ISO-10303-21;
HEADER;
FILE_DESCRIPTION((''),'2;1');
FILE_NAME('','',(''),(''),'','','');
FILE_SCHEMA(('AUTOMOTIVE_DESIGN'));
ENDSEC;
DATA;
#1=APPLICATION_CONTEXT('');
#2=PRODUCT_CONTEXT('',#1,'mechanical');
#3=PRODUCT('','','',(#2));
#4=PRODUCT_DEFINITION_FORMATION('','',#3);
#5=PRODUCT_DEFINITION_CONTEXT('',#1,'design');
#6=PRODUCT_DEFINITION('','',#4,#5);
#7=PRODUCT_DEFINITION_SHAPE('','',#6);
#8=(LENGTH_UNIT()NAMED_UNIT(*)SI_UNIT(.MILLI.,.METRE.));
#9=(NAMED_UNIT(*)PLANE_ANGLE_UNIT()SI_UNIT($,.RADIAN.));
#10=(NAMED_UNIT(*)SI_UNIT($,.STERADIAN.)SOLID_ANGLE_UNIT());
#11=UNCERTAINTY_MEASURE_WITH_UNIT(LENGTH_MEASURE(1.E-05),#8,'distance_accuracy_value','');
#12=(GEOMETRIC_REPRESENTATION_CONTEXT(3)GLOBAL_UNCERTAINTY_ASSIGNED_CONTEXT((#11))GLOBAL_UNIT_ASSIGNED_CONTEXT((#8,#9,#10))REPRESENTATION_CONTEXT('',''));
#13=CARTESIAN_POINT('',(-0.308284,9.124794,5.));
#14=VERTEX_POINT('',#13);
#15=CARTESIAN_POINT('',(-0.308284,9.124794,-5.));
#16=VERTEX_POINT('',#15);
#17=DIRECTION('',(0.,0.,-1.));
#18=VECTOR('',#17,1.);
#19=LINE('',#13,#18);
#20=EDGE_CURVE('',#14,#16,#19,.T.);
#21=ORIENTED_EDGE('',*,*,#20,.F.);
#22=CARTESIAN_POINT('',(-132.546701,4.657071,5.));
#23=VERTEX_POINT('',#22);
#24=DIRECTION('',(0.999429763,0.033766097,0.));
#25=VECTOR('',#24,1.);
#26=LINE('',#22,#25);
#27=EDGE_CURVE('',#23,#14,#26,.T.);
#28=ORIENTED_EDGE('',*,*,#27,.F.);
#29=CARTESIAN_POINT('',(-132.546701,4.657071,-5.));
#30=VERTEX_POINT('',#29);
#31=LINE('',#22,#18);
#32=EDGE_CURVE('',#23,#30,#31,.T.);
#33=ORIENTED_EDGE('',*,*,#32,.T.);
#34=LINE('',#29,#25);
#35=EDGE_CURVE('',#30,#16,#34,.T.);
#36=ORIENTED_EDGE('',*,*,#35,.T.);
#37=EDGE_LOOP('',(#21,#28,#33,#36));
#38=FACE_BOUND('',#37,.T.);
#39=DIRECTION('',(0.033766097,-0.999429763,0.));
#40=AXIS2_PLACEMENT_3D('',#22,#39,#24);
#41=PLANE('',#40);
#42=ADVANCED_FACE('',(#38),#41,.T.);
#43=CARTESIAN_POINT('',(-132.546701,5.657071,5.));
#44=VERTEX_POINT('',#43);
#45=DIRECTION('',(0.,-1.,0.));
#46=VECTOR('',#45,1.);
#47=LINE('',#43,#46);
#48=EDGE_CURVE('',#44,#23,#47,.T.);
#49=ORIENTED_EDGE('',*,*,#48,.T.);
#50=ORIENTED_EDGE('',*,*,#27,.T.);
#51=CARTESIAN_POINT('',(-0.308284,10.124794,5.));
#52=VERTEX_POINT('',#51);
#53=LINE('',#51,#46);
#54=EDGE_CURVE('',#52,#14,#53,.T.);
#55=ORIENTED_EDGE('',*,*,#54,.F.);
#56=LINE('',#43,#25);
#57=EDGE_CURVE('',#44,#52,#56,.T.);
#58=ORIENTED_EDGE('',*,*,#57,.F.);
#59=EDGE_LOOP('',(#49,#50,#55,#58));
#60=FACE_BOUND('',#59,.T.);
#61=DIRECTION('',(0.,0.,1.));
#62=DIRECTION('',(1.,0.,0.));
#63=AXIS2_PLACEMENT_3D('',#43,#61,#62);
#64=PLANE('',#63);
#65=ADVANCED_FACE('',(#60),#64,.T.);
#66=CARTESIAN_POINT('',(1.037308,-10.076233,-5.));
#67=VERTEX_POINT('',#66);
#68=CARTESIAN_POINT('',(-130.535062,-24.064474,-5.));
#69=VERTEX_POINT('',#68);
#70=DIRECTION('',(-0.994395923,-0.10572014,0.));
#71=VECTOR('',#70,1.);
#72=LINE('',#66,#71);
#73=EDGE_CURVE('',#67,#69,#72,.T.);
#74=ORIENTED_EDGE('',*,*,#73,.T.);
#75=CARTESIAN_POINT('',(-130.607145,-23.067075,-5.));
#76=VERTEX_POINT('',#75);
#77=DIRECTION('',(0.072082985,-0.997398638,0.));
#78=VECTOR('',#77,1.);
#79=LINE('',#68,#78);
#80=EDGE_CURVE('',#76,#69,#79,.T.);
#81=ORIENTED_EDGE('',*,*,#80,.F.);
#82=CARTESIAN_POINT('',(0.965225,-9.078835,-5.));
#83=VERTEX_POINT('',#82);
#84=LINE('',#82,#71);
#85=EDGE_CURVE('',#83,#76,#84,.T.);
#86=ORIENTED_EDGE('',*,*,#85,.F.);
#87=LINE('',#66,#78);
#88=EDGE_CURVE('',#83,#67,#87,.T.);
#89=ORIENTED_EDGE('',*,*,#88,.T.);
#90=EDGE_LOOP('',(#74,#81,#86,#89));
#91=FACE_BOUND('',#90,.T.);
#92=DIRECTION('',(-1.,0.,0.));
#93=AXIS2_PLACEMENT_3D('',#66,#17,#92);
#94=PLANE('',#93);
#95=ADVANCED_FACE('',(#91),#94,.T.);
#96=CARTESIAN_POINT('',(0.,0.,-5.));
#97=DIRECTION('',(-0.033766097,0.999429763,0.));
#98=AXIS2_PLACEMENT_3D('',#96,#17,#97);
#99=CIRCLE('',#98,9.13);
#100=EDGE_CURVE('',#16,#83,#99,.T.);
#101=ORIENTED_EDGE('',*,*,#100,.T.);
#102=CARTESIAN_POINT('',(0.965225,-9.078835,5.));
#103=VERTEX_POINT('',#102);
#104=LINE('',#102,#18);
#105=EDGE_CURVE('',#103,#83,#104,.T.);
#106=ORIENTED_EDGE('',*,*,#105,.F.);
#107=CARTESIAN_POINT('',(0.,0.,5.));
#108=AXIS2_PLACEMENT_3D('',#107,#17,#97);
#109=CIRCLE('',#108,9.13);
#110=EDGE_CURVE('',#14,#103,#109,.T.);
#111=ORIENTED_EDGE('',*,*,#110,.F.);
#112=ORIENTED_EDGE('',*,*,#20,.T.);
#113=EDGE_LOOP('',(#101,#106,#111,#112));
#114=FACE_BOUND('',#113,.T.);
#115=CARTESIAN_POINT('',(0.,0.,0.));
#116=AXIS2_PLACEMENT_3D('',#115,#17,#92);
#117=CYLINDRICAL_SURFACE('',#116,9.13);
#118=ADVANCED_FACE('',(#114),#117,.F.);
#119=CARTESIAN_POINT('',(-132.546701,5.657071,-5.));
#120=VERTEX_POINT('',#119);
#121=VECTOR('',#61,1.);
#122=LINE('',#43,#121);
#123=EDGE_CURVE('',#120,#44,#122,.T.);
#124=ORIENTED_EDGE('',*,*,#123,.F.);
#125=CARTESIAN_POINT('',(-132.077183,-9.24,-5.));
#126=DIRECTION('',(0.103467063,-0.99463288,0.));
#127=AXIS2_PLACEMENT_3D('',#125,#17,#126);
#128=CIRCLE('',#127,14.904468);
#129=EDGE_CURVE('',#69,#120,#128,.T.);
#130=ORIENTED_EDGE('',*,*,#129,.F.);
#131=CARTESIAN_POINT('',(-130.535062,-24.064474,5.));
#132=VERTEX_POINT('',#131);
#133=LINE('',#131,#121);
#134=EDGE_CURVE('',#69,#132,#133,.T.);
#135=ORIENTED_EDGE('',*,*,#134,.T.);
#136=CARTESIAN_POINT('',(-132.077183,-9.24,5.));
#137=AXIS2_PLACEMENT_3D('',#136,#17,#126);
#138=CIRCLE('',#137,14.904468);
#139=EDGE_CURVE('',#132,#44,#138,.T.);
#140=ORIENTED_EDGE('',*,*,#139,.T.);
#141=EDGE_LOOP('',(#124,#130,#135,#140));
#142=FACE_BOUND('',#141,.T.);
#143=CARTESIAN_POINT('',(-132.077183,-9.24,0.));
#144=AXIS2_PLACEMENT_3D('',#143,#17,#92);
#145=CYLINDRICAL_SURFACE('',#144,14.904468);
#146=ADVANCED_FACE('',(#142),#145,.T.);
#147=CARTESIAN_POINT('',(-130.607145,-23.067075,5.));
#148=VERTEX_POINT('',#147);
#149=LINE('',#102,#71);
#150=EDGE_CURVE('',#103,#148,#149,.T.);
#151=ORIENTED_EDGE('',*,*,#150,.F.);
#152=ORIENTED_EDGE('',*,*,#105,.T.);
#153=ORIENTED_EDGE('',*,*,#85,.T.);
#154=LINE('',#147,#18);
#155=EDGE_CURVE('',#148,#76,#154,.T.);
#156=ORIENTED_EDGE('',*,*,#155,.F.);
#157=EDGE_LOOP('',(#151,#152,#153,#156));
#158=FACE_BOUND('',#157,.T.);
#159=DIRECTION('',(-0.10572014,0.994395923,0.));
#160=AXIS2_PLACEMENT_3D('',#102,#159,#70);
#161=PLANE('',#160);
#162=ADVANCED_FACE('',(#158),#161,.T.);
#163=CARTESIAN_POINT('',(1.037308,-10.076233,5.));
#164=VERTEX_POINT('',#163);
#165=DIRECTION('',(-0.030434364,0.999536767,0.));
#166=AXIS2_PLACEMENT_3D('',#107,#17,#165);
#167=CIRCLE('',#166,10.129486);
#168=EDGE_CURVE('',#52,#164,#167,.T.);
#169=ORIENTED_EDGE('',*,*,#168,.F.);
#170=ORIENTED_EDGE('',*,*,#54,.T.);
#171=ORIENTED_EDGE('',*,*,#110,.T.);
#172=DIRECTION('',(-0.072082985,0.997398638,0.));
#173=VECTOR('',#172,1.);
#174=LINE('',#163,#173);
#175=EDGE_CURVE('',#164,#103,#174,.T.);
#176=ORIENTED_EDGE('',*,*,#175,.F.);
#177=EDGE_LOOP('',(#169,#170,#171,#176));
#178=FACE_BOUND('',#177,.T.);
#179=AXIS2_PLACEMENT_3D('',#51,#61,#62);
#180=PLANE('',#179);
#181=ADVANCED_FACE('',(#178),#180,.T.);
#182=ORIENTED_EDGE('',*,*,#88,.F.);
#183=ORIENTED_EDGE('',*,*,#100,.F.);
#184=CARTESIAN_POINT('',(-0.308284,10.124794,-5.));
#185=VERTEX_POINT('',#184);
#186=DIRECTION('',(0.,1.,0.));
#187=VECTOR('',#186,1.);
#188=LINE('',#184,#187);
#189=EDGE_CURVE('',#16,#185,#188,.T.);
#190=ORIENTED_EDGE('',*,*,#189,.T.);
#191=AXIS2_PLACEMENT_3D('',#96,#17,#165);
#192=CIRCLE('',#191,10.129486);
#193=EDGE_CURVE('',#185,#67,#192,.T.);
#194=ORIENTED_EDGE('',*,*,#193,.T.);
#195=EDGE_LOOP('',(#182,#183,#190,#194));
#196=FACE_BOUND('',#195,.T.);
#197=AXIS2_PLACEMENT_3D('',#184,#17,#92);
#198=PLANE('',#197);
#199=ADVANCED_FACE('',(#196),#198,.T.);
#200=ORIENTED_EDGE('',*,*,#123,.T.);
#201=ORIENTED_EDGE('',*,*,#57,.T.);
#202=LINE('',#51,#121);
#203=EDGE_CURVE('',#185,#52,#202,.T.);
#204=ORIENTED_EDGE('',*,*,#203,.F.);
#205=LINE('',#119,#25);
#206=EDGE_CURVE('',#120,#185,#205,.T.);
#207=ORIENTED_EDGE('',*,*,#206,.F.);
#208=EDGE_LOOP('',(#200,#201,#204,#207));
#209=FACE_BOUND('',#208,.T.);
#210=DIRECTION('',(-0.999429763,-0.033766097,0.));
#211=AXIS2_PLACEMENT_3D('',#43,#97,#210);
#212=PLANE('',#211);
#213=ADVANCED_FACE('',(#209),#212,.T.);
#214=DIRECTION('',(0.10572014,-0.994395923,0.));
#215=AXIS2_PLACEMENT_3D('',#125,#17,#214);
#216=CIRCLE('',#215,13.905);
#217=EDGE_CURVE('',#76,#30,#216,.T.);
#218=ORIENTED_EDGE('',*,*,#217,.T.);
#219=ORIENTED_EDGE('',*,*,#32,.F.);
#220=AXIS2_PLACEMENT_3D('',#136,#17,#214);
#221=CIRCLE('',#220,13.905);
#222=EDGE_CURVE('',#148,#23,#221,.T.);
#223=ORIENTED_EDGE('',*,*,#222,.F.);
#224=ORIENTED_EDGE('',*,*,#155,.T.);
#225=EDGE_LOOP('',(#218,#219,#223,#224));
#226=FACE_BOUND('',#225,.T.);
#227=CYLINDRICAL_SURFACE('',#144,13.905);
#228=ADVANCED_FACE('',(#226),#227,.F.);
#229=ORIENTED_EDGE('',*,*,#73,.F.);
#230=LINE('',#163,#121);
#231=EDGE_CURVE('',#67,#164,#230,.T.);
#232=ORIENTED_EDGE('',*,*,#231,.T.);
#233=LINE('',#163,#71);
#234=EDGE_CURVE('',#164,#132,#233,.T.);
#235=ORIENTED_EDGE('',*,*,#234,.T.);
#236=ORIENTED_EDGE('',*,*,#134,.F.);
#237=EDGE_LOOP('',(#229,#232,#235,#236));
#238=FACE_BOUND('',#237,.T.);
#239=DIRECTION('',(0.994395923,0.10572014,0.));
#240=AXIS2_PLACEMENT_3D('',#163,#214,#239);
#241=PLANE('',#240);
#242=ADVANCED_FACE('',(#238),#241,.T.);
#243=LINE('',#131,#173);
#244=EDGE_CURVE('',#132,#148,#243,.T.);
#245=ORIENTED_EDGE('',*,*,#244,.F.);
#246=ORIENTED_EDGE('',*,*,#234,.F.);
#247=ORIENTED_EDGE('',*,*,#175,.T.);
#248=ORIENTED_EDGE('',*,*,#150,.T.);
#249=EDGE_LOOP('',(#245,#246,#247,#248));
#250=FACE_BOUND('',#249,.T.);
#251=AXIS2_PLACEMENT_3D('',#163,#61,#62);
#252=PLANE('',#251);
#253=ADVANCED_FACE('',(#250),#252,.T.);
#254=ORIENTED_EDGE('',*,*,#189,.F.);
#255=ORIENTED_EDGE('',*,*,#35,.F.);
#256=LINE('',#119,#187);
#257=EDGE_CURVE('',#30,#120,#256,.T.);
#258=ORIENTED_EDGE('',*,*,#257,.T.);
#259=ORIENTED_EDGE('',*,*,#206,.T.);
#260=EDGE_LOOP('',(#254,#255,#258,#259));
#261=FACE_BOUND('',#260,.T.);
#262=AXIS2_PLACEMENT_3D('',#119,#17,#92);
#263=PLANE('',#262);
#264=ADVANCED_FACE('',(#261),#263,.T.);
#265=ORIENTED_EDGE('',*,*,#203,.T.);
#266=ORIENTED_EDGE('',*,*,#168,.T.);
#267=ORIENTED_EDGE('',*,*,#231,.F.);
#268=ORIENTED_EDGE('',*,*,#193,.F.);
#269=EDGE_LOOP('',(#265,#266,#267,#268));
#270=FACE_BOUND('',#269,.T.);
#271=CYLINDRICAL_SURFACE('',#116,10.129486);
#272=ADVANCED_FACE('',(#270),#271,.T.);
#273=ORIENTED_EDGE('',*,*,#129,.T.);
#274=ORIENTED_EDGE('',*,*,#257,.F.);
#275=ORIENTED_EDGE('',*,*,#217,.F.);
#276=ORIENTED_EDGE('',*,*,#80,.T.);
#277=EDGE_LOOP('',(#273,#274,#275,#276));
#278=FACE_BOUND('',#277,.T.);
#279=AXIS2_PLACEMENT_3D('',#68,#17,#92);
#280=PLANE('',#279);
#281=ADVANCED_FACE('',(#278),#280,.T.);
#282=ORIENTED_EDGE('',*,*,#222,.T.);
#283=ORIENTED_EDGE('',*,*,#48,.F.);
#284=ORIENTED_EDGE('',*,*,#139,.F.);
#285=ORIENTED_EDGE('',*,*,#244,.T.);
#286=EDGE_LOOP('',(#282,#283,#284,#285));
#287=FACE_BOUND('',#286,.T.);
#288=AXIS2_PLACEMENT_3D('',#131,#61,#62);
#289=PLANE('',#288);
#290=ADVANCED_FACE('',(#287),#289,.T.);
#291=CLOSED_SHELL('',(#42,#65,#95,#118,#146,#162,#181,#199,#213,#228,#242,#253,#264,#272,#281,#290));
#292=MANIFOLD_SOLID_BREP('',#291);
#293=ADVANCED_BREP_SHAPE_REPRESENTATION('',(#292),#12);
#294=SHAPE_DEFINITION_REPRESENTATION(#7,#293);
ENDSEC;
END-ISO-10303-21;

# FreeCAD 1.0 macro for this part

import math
import FreeCAD as App
import Part
import Sketcher

V = App.Vector

doc = App.newDocument("Part")
params = doc.addObject("Spreadsheet::Sheet", "Params")
for row, (alias, value) in enumerate([
    ("sketch1_width", "1 mm"),
    ("sketch1_height", "10 mm"),
    ("sketch2_radius", "9.13 mm"),
], start=1):
    params.set(f"A{row}", alias)
    params.set(f"B{row}", "=" + value)
    params.setAlias(f"B{row}", alias)

body = doc.addObject("PartDesign::Body", "Body")

# Sketch on YZ plane
sketch1 = doc.addObject("Sketcher::SketchObject", "Sketch")
body.addObject(sketch1)
sketch1.AttachmentSupport = (doc.YZ_Plane, [""])
sketch1.MapMode = "FlatFace"
sketch1.AttachmentOffset = App.Placement(V(0, 0, -0.308284), App.Rotation())
sketch1.addGeometry(Part.LineSegment(V(10.124794, 5, 0), V(9.124794, 5, 0)), False)
sketch1.addGeometry(Part.LineSegment(V(9.124794, 5, 0), V(9.124794, -5, 0)), False)
sketch1.addGeometry(Part.LineSegment(V(9.124794, -5, 0), V(10.124794, -5, 0)), False)
sketch1.addGeometry(Part.LineSegment(V(10.124794, -5, 0), V(10.124794, 5, 0)), False)
sketch1.addConstraint(Sketcher.Constraint("Coincident", 0, 2, 1, 1))
sketch1.addConstraint(Sketcher.Constraint("Coincident", 1, 2, 2, 1))
sketch1.addConstraint(Sketcher.Constraint("Coincident", 2, 2, 3, 1))
sketch1.addConstraint(Sketcher.Constraint("Coincident", 3, 2, 0, 1))
sketch1.addConstraint(Sketcher.Constraint("Horizontal", 0))
sketch1.addConstraint(Sketcher.Constraint("Vertical", 1))
sketch1.addConstraint(Sketcher.Constraint("Horizontal", 2))
sketch1.addConstraint(Sketcher.Constraint("Vertical", 3))
sketch1.addConstraint(Sketcher.Constraint("DistanceX", 0, 2, 0, 1, 1.0))
sketch1.addConstraint(Sketcher.Constraint("DistanceY", 1, 2, 1, 1, 10.0))
sketch1.addConstraint(Sketcher.Constraint("DistanceY", -1, 1, 0, 2, 5.0))
sketch1.addConstraint(Sketcher.Constraint("DistanceX", -1, 1, 0, 2, 9.124794))
sketch1.setExpression("Constraints[8]", "Params.sketch1_width")
sketch1.setExpression("Constraints[9]", "Params.sketch1_height")

# Sketch on XY plane
sketch2 = doc.addObject("Sketcher::SketchObject", "Sketch001")
body.addObject(sketch2)
sketch2.AttachmentSupport = (doc.XY_Plane, [""])
sketch2.MapMode = "FlatFace"
sketch2.addGeometry(Part.LineSegment(V(0.965225, -9.078835, 0), V(-130.607145, -23.067075, 0)), False)
sketch2.addGeometry(Part.ArcOfCircle(Part.Circle(V(-132.077183, -9.24, 0), V(0, 0, 1), 13.905), math.radians(91.935023), math.radians(276.068658)), False)
sketch2.addGeometry(Part.LineSegment(V(-132.546701, 4.657071, 0), V(-0.308284, 9.124794, 0)), False)
sketch2.addGeometry(Part.ArcOfCircle(Part.Circle(V(0, 0, 0), V(0, 0, 1), 9.13), math.radians(-83.931342), math.radians(91.935023)), False)
sketch2.addConstraint(Sketcher.Constraint("Tangent", 0, 2, 1, 2))
sketch2.addConstraint(Sketcher.Constraint("Tangent", 1, 1, 2, 1))
sketch2.addConstraint(Sketcher.Constraint("Tangent", 2, 2, 3, 2))
sketch2.addConstraint(Sketcher.Constraint("Tangent", 3, 1, 0, 1))
sketch2.addConstraint(Sketcher.Constraint("Coincident", 3, 3, -1, 1))
sketch2.addConstraint(Sketcher.Constraint("Radius", 3, 9.13))
sketch2.addConstraint(Sketcher.Constraint("Radius", 1, 13.905))
sketch2.addConstraint(Sketcher.Constraint("DistanceY", 1, 3, -1, 1, 9.24))
sketch2.addConstraint(Sketcher.Constraint("DistanceX", 1, 1, -1, 1, 132.546701))
sketch2.setExpression("Constraints[5]", "Params.sketch2_radius")
doc.recompute()

additivepipe = doc.addObject("PartDesign::AdditivePipe", "AdditivePipe")
body.addObject(additivepipe)
additivepipe.Profile = sketch1
additivepipe.Spine = (sketch2, ["Edge1", "Edge2", "Edge3", "Edge4"])

doc.recompute()
